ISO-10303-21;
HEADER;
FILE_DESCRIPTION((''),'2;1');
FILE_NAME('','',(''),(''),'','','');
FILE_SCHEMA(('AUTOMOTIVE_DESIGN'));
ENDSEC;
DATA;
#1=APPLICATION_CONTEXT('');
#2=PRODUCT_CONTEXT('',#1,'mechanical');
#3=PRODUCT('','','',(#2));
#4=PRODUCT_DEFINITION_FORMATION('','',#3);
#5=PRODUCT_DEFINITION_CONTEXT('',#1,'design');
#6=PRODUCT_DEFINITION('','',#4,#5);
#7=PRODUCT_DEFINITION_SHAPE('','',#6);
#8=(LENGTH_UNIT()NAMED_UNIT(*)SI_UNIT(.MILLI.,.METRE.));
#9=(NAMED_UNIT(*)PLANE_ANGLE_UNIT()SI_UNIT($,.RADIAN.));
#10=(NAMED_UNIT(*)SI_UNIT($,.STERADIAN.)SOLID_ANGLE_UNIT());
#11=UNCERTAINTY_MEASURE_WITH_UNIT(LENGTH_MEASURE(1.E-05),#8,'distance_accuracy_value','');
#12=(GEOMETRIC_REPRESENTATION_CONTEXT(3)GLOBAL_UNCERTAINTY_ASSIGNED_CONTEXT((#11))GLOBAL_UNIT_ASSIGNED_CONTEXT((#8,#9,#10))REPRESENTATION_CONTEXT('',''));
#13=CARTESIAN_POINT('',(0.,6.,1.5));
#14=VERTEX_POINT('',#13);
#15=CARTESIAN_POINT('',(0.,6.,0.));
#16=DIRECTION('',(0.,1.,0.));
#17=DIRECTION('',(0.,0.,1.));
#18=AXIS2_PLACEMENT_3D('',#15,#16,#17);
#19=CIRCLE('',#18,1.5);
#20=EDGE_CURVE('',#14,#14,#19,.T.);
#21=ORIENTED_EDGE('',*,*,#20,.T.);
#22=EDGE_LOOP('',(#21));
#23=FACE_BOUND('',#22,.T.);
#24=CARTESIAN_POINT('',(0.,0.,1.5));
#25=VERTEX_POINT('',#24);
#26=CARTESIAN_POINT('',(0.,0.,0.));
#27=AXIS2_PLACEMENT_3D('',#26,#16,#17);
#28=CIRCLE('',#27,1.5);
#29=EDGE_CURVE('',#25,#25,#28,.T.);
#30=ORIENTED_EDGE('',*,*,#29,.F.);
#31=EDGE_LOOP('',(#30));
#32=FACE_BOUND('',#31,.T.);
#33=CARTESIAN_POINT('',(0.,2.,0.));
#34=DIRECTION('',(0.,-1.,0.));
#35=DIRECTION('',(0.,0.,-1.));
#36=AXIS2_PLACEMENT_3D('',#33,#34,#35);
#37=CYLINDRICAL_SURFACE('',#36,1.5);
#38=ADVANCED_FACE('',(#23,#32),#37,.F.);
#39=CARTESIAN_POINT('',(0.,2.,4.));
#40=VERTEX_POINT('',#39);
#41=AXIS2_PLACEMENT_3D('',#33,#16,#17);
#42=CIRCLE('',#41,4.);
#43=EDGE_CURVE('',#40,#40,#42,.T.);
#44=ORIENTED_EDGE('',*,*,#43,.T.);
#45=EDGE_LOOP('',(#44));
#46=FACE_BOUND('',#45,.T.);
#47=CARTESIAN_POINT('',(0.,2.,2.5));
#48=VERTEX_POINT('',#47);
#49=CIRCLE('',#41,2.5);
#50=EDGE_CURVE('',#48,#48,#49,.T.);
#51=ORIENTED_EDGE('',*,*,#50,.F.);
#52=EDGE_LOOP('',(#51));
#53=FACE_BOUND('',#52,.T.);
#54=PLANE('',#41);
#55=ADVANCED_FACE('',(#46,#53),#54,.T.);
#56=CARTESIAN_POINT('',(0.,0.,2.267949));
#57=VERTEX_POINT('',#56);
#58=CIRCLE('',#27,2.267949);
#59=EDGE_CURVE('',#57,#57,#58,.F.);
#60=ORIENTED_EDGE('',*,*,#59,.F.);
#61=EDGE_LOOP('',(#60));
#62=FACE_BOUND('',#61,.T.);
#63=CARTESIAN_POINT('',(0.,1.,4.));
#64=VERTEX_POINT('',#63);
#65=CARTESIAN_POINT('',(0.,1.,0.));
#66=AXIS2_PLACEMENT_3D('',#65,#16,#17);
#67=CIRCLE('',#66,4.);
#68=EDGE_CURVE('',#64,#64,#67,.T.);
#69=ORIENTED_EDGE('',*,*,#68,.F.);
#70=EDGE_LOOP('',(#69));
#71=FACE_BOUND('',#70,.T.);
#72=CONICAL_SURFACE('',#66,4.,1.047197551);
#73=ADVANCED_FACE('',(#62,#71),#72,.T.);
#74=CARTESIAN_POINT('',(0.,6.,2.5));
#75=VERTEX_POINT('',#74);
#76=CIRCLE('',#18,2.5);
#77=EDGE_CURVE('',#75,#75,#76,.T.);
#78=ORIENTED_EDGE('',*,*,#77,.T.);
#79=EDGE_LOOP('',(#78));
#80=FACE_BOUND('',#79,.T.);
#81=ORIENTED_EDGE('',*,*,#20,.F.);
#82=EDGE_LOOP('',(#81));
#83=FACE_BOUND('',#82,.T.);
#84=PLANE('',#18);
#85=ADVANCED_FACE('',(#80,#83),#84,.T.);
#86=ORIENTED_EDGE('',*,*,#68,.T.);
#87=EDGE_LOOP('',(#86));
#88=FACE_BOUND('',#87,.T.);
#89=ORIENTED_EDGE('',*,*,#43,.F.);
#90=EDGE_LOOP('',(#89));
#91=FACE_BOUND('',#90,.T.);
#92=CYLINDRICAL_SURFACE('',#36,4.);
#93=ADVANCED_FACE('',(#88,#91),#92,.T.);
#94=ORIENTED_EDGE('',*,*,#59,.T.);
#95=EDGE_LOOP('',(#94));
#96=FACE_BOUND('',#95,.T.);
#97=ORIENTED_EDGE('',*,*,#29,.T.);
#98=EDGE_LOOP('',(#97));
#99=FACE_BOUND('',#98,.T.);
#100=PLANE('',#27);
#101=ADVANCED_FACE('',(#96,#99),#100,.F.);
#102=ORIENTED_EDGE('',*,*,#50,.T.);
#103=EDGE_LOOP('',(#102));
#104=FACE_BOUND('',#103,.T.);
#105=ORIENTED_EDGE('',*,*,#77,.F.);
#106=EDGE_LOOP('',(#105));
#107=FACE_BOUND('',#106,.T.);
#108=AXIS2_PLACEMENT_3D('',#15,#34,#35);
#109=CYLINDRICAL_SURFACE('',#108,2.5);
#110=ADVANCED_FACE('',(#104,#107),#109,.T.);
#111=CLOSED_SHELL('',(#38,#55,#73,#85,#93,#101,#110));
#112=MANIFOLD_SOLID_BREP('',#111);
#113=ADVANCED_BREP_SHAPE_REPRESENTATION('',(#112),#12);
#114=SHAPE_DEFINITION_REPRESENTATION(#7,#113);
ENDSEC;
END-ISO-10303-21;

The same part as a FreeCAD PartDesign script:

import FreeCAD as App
import Part
import Sketcher

V = App.Vector
Q = App.Units.Quantity


def edges_at(feature, points):
    """Names of the edges that pass closest to the given points."""
    edges = feature.Shape.Edges
    near = lambda p: min(range(len(edges)), key=lambda i: edges[i].distToShape(Part.Vertex(*p))[0])
    return sorted({f"Edge{near(p) + 1}" for p in points})

doc = App.newDocument("Part")
params = doc.addObject("Spreadsheet::Sheet", "Params")
for row, (alias, value) in enumerate([
    ("sketch1_diameter", "8 mm"),
    ("sketch1_diameter2", "3 mm"),
    ("pad1_length", "2 mm"),
    ("sketch2_diameter", "5 mm"),
    ("sketch2_diameter2", "3 mm"),
    ("pad2_length", "4 mm"),
    ("chamfer_size", "1 mm"),
    ("chamfer_size2", "1.732051 mm"),
], start=1):
    params.set(f"A{row}", alias)
    params.set(f"B{row}", "=" + value)
    params.setAlias(f"B{row}", alias)

body = doc.addObject("PartDesign::Body", "Body")

sketch1 = body.newObject("Sketcher::SketchObject", "Sketch")
sketch1.AttachmentSupport = (doc.getObject("XZ_Plane"), [""])
sketch1.MapMode = "FlatFace"
sketch1.addGeometry([
    Part.Circle(V(0, 0, 0), V(0, 0, 1), 4),
    Part.Circle(V(0, 0, 0), V(0, 0, 1), 1.5),
], False)
sketch1.addConstraint([
    Sketcher.Constraint("Coincident", 0, 3, -1, 1),
    Sketcher.Constraint("Coincident", 1, 3, -1, 1),
    Sketcher.Constraint("Diameter", 0, Q("8 mm")),
    Sketcher.Constraint("Diameter", 1, Q("3 mm")),
])
sketch1.setExpression("Constraints[2]", "Params.sketch1_diameter")
sketch1.setExpression("Constraints[3]", "Params.sketch1_diameter2")
pad1 = body.newObject("PartDesign::Pad", "Pad")
pad1.Profile = sketch1
pad1.setExpression("Length", "Params.pad1_length")
pad1.Reversed = True

sketch2 = body.newObject("Sketcher::SketchObject", "Sketch001")
sketch2.AttachmentSupport = (doc.getObject("XZ_Plane"), [""])
sketch2.MapMode = "FlatFace"
sketch2.AttachmentOffset = App.Placement(V(0, 0, -2), App.Rotation())
sketch2.addGeometry([
    Part.Circle(V(0, 0, 0), V(0, 0, 1), 2.5),
    Part.Circle(V(0, 0, 0), V(0, 0, 1), 1.5),
], False)
sketch2.addConstraint([
    Sketcher.Constraint("Coincident", 0, 3, -1, 1),
    Sketcher.Constraint("Coincident", 1, 3, -1, 1),
    Sketcher.Constraint("Diameter", 0, Q("5 mm")),
    Sketcher.Constraint("Diameter", 1, Q("3 mm")),
])
sketch2.setExpression("Constraints[2]", "Params.sketch2_diameter")
sketch2.setExpression("Constraints[3]", "Params.sketch2_diameter2")
pad2 = body.newObject("PartDesign::Pad", "Pad001")
pad2.Profile = sketch2
pad2.setExpression("Length", "Params.pad2_length")
pad2.Reversed = True
doc.recompute()

chamfer = body.newObject("PartDesign::Chamfer", "Chamfer")
chamfer.Base = (pad2, edges_at(pad2, [(0, 0, -4)]))
chamfer.ChamferType = "Two distances"
chamfer.setExpression("Size", "Params.chamfer_size")
chamfer.setExpression("Size2", "Params.chamfer_size2")

doc.recompute()
